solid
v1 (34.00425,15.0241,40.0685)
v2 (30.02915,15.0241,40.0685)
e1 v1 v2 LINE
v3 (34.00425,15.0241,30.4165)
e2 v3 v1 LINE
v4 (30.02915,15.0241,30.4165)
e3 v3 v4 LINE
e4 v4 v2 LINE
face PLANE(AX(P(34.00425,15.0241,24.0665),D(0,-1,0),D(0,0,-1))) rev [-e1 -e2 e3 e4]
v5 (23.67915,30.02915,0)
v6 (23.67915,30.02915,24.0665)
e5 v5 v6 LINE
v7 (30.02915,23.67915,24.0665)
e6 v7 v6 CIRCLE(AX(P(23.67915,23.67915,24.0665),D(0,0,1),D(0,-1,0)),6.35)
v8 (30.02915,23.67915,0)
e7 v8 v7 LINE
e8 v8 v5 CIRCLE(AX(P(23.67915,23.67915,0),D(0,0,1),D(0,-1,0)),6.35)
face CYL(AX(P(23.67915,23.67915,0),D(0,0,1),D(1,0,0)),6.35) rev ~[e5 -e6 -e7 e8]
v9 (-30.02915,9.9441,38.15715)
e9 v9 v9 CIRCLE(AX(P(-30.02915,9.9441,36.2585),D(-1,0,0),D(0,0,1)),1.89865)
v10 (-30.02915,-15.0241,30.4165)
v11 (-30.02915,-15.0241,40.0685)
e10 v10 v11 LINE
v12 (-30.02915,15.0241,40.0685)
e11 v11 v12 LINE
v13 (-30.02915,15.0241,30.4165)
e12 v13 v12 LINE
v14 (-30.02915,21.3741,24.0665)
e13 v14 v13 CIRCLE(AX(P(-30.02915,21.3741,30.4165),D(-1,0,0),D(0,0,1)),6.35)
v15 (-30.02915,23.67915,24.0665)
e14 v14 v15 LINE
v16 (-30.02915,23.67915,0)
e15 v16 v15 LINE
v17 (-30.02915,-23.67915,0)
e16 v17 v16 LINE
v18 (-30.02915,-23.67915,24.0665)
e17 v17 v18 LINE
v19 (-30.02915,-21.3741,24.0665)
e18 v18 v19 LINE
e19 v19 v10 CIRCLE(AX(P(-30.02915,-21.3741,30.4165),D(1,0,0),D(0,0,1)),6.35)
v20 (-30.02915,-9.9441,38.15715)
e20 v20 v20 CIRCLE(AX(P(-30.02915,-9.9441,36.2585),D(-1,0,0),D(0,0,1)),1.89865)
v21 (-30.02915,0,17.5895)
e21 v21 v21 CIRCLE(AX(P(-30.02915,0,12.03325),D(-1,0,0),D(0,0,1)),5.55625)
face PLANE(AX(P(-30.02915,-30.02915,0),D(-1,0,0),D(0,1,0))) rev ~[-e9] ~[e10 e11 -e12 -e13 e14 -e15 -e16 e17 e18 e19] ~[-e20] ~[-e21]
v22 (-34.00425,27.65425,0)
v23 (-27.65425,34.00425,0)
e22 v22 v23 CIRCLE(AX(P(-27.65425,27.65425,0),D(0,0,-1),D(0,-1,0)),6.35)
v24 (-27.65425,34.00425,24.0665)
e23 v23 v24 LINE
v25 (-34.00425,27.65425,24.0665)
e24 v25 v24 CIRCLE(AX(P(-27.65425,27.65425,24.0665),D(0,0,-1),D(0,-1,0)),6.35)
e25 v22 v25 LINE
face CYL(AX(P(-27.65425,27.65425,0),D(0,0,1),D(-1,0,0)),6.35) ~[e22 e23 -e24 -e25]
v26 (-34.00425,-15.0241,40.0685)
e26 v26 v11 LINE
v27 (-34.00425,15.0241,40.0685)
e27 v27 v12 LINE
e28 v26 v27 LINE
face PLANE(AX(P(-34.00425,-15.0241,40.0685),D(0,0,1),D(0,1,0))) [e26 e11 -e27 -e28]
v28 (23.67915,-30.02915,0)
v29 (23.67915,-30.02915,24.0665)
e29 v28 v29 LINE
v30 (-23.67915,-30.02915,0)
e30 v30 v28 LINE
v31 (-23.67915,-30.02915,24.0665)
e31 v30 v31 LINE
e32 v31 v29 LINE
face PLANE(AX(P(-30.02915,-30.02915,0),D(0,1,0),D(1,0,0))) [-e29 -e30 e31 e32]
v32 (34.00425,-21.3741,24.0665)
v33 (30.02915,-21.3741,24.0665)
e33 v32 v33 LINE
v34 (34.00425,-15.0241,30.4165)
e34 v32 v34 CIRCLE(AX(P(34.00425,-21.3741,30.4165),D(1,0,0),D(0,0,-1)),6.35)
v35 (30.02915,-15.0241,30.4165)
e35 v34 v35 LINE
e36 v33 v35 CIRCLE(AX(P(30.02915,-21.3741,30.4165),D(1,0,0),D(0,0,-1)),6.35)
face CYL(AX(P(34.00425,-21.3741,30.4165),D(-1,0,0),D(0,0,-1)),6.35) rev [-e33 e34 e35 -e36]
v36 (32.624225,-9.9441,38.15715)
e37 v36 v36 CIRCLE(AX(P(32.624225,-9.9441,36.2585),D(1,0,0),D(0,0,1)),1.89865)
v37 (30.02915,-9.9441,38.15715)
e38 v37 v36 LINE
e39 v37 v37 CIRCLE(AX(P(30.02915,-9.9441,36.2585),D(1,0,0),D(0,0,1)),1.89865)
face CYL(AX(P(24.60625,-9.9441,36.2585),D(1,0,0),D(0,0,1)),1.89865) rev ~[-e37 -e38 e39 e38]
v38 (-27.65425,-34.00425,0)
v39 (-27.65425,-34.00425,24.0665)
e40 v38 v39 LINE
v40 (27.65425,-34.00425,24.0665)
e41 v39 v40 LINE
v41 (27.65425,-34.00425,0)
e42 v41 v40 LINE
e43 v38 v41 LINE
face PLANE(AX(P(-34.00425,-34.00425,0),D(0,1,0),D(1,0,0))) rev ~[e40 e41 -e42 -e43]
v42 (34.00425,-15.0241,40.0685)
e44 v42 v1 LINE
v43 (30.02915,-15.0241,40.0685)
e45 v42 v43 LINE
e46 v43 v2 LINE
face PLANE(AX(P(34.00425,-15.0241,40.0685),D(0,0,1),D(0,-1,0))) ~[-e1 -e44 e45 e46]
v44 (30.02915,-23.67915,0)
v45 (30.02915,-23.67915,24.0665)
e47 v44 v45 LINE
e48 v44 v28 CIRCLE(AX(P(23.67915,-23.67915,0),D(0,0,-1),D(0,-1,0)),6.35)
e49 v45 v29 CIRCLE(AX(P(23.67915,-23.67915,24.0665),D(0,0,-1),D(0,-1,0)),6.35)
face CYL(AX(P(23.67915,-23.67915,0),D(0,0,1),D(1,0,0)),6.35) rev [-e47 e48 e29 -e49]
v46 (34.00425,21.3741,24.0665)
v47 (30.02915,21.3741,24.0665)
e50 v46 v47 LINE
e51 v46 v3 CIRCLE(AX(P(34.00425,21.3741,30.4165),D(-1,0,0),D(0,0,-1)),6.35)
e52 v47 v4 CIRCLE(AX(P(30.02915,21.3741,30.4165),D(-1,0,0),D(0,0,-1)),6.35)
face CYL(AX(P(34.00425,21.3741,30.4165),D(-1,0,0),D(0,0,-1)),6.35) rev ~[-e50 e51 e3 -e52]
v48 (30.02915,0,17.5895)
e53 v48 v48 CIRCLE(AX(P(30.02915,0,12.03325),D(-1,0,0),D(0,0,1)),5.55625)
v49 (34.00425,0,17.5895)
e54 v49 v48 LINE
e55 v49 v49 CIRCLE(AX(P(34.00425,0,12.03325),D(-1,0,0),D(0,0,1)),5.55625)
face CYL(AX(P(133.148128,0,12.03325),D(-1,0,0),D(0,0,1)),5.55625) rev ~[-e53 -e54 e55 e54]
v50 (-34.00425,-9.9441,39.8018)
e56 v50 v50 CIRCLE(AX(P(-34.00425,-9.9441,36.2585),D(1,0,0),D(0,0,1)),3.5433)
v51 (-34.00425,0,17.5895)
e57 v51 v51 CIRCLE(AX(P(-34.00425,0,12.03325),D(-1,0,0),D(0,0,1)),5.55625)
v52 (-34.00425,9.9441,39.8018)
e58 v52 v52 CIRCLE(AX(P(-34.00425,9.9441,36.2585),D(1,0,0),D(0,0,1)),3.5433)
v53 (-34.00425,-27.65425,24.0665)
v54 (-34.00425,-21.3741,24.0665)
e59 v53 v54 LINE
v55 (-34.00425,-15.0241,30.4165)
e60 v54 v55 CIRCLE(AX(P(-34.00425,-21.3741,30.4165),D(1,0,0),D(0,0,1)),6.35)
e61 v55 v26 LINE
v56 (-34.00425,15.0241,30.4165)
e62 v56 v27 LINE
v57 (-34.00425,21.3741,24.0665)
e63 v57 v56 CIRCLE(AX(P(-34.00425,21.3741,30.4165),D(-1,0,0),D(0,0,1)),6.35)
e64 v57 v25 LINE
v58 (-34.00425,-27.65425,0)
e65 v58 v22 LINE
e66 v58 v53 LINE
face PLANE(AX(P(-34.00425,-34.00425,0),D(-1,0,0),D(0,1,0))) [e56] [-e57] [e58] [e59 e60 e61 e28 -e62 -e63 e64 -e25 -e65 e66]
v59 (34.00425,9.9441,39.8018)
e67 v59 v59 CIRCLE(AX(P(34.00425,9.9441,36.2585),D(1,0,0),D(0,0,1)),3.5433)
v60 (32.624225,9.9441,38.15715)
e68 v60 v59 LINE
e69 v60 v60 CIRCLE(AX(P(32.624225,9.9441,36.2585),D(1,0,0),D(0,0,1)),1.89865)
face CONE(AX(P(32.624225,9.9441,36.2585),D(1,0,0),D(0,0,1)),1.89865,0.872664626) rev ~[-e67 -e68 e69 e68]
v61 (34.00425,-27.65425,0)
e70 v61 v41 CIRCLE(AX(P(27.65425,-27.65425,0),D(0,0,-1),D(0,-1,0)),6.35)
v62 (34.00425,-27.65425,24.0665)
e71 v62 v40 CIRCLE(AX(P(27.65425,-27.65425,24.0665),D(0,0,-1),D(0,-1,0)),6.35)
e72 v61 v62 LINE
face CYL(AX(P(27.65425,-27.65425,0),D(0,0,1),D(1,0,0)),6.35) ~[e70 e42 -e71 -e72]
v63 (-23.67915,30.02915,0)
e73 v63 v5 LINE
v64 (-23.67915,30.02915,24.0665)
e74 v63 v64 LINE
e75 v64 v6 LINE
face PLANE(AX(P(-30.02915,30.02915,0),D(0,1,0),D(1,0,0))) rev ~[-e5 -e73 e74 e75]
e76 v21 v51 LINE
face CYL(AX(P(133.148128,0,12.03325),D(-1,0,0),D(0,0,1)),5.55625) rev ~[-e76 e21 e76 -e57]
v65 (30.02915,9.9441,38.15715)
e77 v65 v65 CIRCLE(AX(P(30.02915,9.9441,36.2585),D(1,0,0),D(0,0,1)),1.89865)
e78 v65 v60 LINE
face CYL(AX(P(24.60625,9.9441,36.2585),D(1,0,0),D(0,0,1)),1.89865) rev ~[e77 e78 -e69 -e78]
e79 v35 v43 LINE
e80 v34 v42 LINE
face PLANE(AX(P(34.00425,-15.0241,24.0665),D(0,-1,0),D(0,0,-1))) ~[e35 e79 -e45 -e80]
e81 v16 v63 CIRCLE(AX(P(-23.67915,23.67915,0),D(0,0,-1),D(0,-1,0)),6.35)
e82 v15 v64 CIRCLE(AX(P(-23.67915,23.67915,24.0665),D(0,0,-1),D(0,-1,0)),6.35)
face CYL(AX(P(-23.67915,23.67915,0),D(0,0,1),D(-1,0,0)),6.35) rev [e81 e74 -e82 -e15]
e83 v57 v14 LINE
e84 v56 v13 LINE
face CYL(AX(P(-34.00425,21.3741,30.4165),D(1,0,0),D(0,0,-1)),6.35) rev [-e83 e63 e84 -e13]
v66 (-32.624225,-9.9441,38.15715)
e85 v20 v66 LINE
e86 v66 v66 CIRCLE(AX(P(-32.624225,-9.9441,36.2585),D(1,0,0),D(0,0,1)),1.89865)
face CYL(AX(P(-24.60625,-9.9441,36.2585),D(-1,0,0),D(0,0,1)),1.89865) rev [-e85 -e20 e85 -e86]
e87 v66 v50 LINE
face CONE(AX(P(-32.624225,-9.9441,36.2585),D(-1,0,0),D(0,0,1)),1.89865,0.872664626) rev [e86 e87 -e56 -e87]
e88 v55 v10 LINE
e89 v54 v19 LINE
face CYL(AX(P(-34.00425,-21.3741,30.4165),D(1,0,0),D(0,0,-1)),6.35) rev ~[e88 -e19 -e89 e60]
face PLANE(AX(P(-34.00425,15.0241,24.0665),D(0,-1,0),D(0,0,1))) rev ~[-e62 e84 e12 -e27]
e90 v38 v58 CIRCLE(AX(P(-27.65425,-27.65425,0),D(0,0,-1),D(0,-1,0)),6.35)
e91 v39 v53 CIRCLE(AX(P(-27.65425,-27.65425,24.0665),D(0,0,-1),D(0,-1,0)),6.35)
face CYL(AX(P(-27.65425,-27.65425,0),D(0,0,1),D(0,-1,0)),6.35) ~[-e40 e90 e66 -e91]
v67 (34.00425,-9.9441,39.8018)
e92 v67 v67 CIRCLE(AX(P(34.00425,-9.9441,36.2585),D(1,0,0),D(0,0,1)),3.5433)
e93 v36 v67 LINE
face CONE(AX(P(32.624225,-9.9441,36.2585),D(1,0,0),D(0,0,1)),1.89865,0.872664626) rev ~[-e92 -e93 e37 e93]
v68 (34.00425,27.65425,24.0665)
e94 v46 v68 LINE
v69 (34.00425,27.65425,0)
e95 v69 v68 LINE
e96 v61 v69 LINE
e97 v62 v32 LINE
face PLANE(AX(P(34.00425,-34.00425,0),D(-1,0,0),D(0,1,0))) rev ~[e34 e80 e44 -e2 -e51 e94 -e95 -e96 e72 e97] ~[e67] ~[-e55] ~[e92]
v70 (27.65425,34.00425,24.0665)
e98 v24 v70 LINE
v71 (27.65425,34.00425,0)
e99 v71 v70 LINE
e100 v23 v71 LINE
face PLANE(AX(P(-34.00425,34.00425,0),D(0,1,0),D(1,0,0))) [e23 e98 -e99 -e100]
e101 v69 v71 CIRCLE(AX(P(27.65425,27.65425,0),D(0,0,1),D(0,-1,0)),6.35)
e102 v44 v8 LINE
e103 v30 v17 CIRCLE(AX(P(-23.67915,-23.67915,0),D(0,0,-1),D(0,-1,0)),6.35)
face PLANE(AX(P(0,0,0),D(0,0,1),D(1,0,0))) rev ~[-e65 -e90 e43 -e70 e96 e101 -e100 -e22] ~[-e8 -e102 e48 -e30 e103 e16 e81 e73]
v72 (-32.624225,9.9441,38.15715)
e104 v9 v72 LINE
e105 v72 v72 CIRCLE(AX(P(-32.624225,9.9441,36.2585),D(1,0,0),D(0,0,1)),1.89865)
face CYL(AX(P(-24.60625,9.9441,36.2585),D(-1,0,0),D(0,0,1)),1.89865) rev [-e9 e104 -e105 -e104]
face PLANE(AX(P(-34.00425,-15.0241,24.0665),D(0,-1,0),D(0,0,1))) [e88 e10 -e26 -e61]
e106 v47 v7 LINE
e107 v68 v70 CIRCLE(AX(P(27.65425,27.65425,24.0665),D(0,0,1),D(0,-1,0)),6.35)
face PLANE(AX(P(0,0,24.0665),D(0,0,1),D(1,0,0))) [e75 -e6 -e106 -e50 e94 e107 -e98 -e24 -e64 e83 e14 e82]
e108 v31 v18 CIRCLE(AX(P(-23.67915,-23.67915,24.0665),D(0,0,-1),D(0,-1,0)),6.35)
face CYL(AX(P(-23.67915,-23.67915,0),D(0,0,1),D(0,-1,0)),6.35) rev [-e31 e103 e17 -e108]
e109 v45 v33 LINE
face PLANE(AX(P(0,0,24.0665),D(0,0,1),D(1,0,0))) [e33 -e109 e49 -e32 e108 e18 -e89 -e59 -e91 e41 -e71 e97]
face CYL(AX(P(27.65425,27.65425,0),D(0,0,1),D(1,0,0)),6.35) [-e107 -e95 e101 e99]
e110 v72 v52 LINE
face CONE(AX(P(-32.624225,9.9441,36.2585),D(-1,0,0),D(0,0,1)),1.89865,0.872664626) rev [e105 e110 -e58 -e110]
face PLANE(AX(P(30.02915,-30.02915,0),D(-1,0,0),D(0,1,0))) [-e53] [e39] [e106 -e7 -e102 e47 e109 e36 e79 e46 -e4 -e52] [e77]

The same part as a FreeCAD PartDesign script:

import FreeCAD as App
import Part
import Sketcher
from FreeCAD import Vector
Q = App.Units.Quantity


def edges_at(feature, points):
    """Names of the edges that pass closest to the given points."""
    edges = feature.Shape.Edges
    near = lambda p: min(range(len(edges)), key=lambda i: edges[i].distToShape(Part.Vertex(*p))[0])
    return sorted({f"Edge{near(p) + 1}" for p in points})


def add_polygon(sketch, points):
    """Adds a closed chain of lines whose ends are joined by coincident constraints."""
    first, n = sketch.GeometryCount, len(points)
    for a, b in zip(points, points[1:] + points[:1]):
        sketch.addGeometry(Part.LineSegment(App.Vector(*a, 0), App.Vector(*b, 0)), False)
    for i in range(n):
        sketch.addConstraint(Sketcher.Constraint("Coincident", first + i, 2, first + (i + 1) % n, 1))

doc = App.newDocument("Part")
body = doc.addObject("PartDesign::Body", "Body")

# Sketch on XY plane
sketch1 = body.newObject("Sketcher::SketchObject", "Sketch")
sketch1.AttachmentSupport = (doc.getObject("XY_Plane"), [""])
sketch1.MapMode = "FlatFace"
add_polygon(sketch1, [(-34, 34), (-34, -34), (34, -34), (34, 34)])  # lines 0-3
add_polygon(sketch1, [(30, -30), (-30, -30), (-30, 30), (30, 30)])  # lines 4-7
sketch1.addConstraint([
    Sketcher.Constraint("Vertical", 0),
    Sketcher.Constraint("Horizontal", 1),
    Sketcher.Constraint("Vertical", 2),
    Sketcher.Constraint("Horizontal", 3),
    Sketcher.Constraint("Horizontal", 4),
    Sketcher.Constraint("Vertical", 5),
    Sketcher.Constraint("Horizontal", 6),
    Sketcher.Constraint("Vertical", 7),
    Sketcher.Constraint("Symmetric", 0, 2, 2, 2, -1, 1),
    Sketcher.Constraint("Symmetric", 4, 2, 6, 2, -1, 1),
    Sketcher.Constraint("Equal", 3, 0),
    Sketcher.Constraint("Equal", 6, 5),
    Sketcher.Constraint("DistanceX", 1, 1, 1, 2, Q("2.6775 in")),
    Sketcher.Constraint("DistanceX", 4, 2, 4, 1, Q("2.3645 in")),
])
pad1 = body.newObject("PartDesign::Pad", "Pad")
pad1.Profile = sketch1
pad1.Length = Q("0.9475 in")

# Sketch on YZ plane
sketch2 = body.newObject("Sketcher::SketchObject", "Sketch001")
sketch2.AttachmentSupport = (doc.getObject("YZ_Plane"), [""])
sketch2.MapMode = "FlatFace"
sketch2.AttachmentOffset = App.Placement(Vector(0, 0, 34.00425), App.Rotation())
sketch2.addGeometry(Part.Circle(Vector(0, 12, 0), Vector(0, 0, 1), 6), False)
sketch2.addConstraint([
    Sketcher.Constraint("PointOnObject", 0, 3, -2),
    Sketcher.Constraint("Diameter", 0, Q("0.4375 in")),
    Sketcher.Constraint("DistanceY", -1, 1, 0, 3, 12.03325),
])
doc.recompute()
hole = body.newObject("PartDesign::Hole", "Hole")
hole.Profile = sketch2
hole.ThreadType = "None"
hole.Diameter = Q("0.4375 in")
hole.DepthType = "ThroughAll"

# Sketch on YZ plane
sketch3 = body.newObject("Sketcher::SketchObject", "Sketch002")
sketch3.AttachmentSupport = (doc.getObject("YZ_Plane"), [""])
sketch3.MapMode = "FlatFace"
sketch3.AttachmentOffset = App.Placement(Vector(0, 0, -34.00425), App.Rotation())
add_polygon(sketch3, [(15, 24), (-15, 24), (-15, 40), (15, 40)])  # lines 0-3
sketch3.addConstraint([
    Sketcher.Constraint("Horizontal", 0),
    Sketcher.Constraint("Vertical", 1),
    Sketcher.Constraint("Horizontal", 2),
    Sketcher.Constraint("Vertical", 3),
    Sketcher.Constraint("DistanceY", 1, 1, 1, 2, Q("0.63 in")),
    Sketcher.Constraint("DistanceX", 0, 2, 0, 1, Q("1.183 in")),
    Sketcher.Constraint("DistanceX", 0, 2, -1, 1, Q("0.5915 in")),
    Sketcher.Constraint("DistanceY", -1, 1, 0, 2, Q("0.9475 in")),
])
pad2 = body.newObject("PartDesign::Pad", "Pad001")
pad2.Profile = sketch3
pad2.Length = Q("0.1565 in")
doc.recompute()

fillet = body.newObject("PartDesign::Fillet", "Fillet")
fillet.Base = (pad2, edges_at(pad2, [(-32.017, -15.024, 24.067), (-32.017, 15.024, 24.067)]))
fillet.Radius = Q("0.25 in")
doc.recompute()

mirrored = body.newObject("PartDesign::Mirrored", "Mirrored")
mirrored.Originals = [pad2]
mirrored.MirrorPlane = (doc.getObject("YZ_Plane"), [""])
body.Tip = mirrored
doc.recompute()

fillet2 = body.newObject("PartDesign::Fillet", "Fillet001")
fillet2.Base = (mirrored, edges_at(mirrored, [(32.017, -15.024, 24.067), (32.017, 15.024, 24.067)]))
fillet2.Radius = Q("0.25 in")
doc.recompute()

fillet3 = body.newObject("PartDesign::Fillet", "Fillet002")
fillet3.Base = (fillet2, edges_at(fillet2, [
    (34.004, -34.004, 12.033),
    (-34.004, -34.004, 12.033),
    (-34.004, 34.004, 12.033),
    (34.004, 34.004, 12.033),
]))
fillet3.Radius = Q("0.25 in")
doc.recompute()

fillet4 = body.newObject("PartDesign::Fillet", "Fillet003")
fillet4.Base = (fillet3, edges_at(fillet3, [
    (30.029, -30.029, 12.033),
    (30.029, 30.029, 12.033),
    (-30.029, 30.029, 12.033),
    (-30.029, -30.029, 12.033),
]))
fillet4.Radius = Q("0.25 in")

# Sketch on XZ plane
sketch4 = body.newObject("Sketcher::SketchObject", "Sketch003")
sketch4.AttachmentSupport = (doc.getObject("XZ_Plane"), [""])
sketch4.MapMode = "FlatFace"
sketch4.AttachmentOffset = App.Placement(Vector(0, 0, -0.3915 * 25.4), App.Rotation())
add_polygon(sketch4, [(-23.5, 36.3), (-34, 36.3), (-34, 39.8), (-32.6, 38.2), (-24.6, 38.2)])  # lines 0-4
sketch4.addGeometry(Part.LineSegment(Vector(-34, 36.3, 0), Vector(-23.5, 36.3, 0)), True)  # axis
sketch4.addConstraint([
    Sketcher.Constraint("Horizontal", 0),
    Sketcher.Constraint("Vertical", 1),
    Sketcher.Constraint("Horizontal", 3),
    Sketcher.Constraint("Horizontal", 5),
    Sketcher.Constraint("Coincident", 5, 1, 0, 2),
    Sketcher.Constraint("Equal", 0, 5),
    Sketcher.Constraint("Angle", 2, Q("-50 deg")),
    Sketcher.Constraint("Angle", 4, Q("-59 deg")),
    Sketcher.Constraint("DistanceX", 1, 2, 3, 2, Q("0.37 in")),
    Sketcher.Constraint("DistanceY", 1, 1, 1, 2, Q("0.1395 in")),
    Sketcher.Constraint("DistanceY", -1, 1, 1, 2, Q("1.567 in")),
    Sketcher.Constraint("DistanceX", 3, 2, -1, 1, Q("0.96875 in")),
    Sketcher.Constraint("DistanceX", 2, 2, 4, 2, 9.158799),
])
groove = body.newObject("PartDesign::Groove", "Groove")
groove.Profile = sketch4
groove.ReferenceAxis = (sketch4, ["Axis0"])
groove.Angle = 360
doc.recompute()

linearpattern = body.newObject("PartDesign::LinearPattern", "LinearPattern")
linearpattern.Originals = [groove]
linearpattern.Direction = (doc.getObject("Y_Axis"), [""])
linearpattern.Mode = "offset"
linearpattern.Offset = Q("0.783 in")
linearpattern.Occurrences = 2
linearpattern.Reversed = True
body.Tip = linearpattern
doc.recompute()

mirrored2 = body.newObject("PartDesign::Mirrored", "Mirrored001")
mirrored2.Originals = [groove]
mirrored2.MirrorPlane = (doc.getObject("YZ_Plane"), [""])
body.Tip = mirrored2

# Sketch on XZ plane
sketch5 = body.newObject("Sketcher::SketchObject", "Sketch004")
sketch5.AttachmentSupport = (doc.getObject("XZ_Plane"), [""])
sketch5.MapMode = "FlatFace"
sketch5.AttachmentOffset = App.Placement(Vector(0, 0, 0.3915 * 25.4), App.Rotation())
add_polygon(sketch5, [(34, 36.3), (23.5, 36.3), (24.6, 38.2), (32.6, 38.2), (34, 39.8)])  # lines 0-4
sketch5.addGeometry(Part.LineSegment(Vector(23.5, 36.3, 0), Vector(34, 36.3, 0)), True)  # axis
sketch5.addConstraint([
    Sketcher.Constraint("Horizontal", 0),
    Sketcher.Constraint("Horizontal", 2),
    Sketcher.Constraint("Vertical", 4),
    Sketcher.Constraint("Horizontal", 5),
    Sketcher.Constraint("Coincident", 5, 1, 0, 2),
    Sketcher.Constraint("Vertical", 3, 2, 5, 2),
    Sketcher.Constraint("Angle", 1, Q("59 deg")),
    Sketcher.Constraint("Angle", 3, Q("50 deg")),
    Sketcher.Constraint("DistanceX", 1, 2, 3, 2, Q("0.37 in")),
    Sketcher.Constraint("DistanceY", 4, 2, 4, 1, Q("0.1395 in")),
    Sketcher.Constraint("DistanceX", -1, 1, 1, 2, Q("0.96875 in")),
    Sketcher.Constraint("DistanceY", -1, 1, 3, 2, Q("1.567 in")),
    Sketcher.Constraint("DistanceX", 0, 2, 2, 2, 9.158799),
])
groove2 = body.newObject("PartDesign::Groove", "Groove001")
groove2.Profile = sketch5
groove2.ReferenceAxis = (sketch5, ["Axis0"])
groove2.Angle = 360

doc.recompute()
